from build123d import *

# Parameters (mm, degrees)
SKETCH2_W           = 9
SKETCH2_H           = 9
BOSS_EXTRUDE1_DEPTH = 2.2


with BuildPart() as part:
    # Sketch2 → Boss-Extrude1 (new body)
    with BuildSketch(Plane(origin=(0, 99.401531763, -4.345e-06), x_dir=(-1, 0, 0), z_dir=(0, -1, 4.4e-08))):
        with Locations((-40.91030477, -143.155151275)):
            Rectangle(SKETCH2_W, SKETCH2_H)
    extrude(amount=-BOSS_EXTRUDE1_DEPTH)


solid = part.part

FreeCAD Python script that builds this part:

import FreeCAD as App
import Part
import Sketcher

V = App.Vector


def add_polygon(sketch, points):
    """Adds a closed chain of lines whose ends are joined by coincident constraints."""
    first, n = sketch.GeometryCount, len(points)
    for a, b in zip(points, points[1:] + points[:1]):
        sketch.addGeometry(Part.LineSegment(App.Vector(*a, 0), App.Vector(*b, 0)), False)
    for i in range(n):
        sketch.addConstraint(Sketcher.Constraint("Coincident", first + i, 2, first + (i + 1) % n, 1))

doc = App.newDocument("Part")
body = doc.addObject("PartDesign::Body", "Body")

# Sketch on XZ plane
sketch1 = body.newObject("Sketcher::SketchObject", "Sketch")
sketch1.AttachmentSupport = (doc.getObject("XZ_Plane"), [""])
sketch1.MapMode = "FlatFace"
sketch1.AttachmentOffset = App.Placement(V(0, 0, -99.401532), App.Rotation())
add_polygon(sketch1, [(45, 139), (45, 148), (36, 148), (36, 139)])  # lines 0-3
sketch1.addConstraint([
    Sketcher.Constraint("Vertical", 0),
    Sketcher.Constraint("Horizontal", 1),
    Sketcher.Constraint("Vertical", 2),
    Sketcher.Constraint("Horizontal", 3),
    Sketcher.Constraint("Equal", 3, 0),
    Sketcher.Constraint("DistanceX", 1, 2, 1, 1, 9.0),
    Sketcher.Constraint("DistanceX", -1, 1, 0, 2, 45.410305),
    Sketcher.Constraint("DistanceY", -1, 1, 0, 2, 147.655147),
])
pad1 = body.newObject("PartDesign::Pad", "Pad")
pad1.Profile = sketch1
pad1.Length = 2.2
pad1.Reversed = True

doc.recompute()
